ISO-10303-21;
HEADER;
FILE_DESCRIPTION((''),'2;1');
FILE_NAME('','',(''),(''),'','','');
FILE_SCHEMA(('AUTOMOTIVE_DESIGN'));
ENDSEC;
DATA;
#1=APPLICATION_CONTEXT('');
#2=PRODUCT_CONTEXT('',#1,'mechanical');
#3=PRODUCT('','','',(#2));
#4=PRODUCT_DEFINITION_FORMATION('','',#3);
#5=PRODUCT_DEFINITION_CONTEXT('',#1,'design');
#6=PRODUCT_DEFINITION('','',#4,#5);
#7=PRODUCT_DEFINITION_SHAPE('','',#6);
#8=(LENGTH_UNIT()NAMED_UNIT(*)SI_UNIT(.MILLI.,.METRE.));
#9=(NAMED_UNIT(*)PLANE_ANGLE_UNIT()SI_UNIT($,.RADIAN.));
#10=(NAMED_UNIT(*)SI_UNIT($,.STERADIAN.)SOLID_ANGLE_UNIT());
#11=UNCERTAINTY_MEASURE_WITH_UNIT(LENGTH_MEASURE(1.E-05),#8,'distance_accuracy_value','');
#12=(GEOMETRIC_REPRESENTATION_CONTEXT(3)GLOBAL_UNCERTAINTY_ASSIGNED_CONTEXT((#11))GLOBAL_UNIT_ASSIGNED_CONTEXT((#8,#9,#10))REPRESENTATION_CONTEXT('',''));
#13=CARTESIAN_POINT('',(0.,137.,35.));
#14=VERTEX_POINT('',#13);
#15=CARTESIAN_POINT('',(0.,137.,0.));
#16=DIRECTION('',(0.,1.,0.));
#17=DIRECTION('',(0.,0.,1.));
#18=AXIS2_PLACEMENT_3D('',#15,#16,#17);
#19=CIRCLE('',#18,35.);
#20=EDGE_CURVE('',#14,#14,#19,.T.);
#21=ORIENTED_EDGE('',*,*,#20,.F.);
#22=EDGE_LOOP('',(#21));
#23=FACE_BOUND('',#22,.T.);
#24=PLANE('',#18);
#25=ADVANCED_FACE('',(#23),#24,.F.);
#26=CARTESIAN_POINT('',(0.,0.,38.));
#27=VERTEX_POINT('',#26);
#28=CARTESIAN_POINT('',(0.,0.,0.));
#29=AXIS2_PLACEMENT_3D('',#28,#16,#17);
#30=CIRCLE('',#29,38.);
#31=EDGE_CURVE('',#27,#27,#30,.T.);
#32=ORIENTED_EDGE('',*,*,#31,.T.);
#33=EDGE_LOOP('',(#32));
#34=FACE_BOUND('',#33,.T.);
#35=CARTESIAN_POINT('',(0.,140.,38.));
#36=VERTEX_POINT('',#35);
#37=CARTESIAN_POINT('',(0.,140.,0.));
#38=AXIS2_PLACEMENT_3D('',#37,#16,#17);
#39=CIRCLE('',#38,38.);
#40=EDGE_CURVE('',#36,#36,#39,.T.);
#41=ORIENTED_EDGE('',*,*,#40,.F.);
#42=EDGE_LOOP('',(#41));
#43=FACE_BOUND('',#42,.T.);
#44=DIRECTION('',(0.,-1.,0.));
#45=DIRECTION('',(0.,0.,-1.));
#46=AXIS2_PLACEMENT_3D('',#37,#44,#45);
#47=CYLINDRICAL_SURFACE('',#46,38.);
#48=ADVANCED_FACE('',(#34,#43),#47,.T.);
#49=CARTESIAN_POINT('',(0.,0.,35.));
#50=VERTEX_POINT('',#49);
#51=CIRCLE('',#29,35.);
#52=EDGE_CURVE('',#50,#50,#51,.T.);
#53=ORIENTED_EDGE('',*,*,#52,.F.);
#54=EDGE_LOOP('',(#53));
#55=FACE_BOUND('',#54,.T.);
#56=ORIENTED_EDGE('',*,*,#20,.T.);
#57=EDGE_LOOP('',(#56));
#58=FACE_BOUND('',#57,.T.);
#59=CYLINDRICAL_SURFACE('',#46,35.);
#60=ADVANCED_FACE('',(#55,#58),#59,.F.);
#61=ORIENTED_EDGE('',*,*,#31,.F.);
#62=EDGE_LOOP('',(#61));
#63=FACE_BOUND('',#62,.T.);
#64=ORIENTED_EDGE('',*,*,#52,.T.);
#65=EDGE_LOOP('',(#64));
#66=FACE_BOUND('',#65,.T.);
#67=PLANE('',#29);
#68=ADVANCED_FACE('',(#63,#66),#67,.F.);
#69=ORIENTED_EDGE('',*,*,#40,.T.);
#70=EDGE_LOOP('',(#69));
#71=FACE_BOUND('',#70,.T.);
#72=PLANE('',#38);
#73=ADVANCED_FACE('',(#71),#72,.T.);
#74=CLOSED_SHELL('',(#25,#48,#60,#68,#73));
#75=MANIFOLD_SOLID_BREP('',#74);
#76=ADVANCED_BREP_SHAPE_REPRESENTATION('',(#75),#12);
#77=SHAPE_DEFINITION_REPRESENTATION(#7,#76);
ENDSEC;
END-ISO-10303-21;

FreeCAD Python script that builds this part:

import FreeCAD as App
import Part
import Sketcher

V = App.Vector
Q = App.Units.Quantity


def faces_at(feature, points):
    """Names of the faces that lie closest to the given points."""
    faces = feature.Shape.Faces
    near = lambda p: min(range(len(faces)), key=lambda i: faces[i].distToShape(Part.Vertex(*p))[0])
    return sorted({f"Face{near(p) + 1}" for p in points})

doc = App.newDocument("Part")
body = doc.addObject("PartDesign::Body", "Body")

sketch1 = doc.addObject("Sketcher::SketchObject", "Sketch")
body.addObject(sketch1)
sketch1.AttachmentSupport = (doc.XZ_Plane, [""])
sketch1.MapMode = "FlatFace"
sketch1.addGeometry(Part.Circle(V(0, 0, 0), V(0, 0, 1), 38), False)
sketch1.addConstraint([
    Sketcher.Constraint("Coincident", 0, 3, -1, 1),
    Sketcher.Constraint("Diameter", 0, Q("76 mm")),
])
pad1 = doc.addObject("PartDesign::Pad", "Pad")
body.addObject(pad1)
pad1.Profile = sketch1
pad1.Length = 140
pad1.Reversed = True
doc.recompute()

thickness = doc.addObject("PartDesign::Thickness", "Thickness")
body.addObject(thickness)
thickness.Base = (pad1, faces_at(pad1, [(0, 0, 0)]))
thickness.Value = 3
thickness.Reversed = True
thickness.Join = "Intersection"

doc.recompute()
